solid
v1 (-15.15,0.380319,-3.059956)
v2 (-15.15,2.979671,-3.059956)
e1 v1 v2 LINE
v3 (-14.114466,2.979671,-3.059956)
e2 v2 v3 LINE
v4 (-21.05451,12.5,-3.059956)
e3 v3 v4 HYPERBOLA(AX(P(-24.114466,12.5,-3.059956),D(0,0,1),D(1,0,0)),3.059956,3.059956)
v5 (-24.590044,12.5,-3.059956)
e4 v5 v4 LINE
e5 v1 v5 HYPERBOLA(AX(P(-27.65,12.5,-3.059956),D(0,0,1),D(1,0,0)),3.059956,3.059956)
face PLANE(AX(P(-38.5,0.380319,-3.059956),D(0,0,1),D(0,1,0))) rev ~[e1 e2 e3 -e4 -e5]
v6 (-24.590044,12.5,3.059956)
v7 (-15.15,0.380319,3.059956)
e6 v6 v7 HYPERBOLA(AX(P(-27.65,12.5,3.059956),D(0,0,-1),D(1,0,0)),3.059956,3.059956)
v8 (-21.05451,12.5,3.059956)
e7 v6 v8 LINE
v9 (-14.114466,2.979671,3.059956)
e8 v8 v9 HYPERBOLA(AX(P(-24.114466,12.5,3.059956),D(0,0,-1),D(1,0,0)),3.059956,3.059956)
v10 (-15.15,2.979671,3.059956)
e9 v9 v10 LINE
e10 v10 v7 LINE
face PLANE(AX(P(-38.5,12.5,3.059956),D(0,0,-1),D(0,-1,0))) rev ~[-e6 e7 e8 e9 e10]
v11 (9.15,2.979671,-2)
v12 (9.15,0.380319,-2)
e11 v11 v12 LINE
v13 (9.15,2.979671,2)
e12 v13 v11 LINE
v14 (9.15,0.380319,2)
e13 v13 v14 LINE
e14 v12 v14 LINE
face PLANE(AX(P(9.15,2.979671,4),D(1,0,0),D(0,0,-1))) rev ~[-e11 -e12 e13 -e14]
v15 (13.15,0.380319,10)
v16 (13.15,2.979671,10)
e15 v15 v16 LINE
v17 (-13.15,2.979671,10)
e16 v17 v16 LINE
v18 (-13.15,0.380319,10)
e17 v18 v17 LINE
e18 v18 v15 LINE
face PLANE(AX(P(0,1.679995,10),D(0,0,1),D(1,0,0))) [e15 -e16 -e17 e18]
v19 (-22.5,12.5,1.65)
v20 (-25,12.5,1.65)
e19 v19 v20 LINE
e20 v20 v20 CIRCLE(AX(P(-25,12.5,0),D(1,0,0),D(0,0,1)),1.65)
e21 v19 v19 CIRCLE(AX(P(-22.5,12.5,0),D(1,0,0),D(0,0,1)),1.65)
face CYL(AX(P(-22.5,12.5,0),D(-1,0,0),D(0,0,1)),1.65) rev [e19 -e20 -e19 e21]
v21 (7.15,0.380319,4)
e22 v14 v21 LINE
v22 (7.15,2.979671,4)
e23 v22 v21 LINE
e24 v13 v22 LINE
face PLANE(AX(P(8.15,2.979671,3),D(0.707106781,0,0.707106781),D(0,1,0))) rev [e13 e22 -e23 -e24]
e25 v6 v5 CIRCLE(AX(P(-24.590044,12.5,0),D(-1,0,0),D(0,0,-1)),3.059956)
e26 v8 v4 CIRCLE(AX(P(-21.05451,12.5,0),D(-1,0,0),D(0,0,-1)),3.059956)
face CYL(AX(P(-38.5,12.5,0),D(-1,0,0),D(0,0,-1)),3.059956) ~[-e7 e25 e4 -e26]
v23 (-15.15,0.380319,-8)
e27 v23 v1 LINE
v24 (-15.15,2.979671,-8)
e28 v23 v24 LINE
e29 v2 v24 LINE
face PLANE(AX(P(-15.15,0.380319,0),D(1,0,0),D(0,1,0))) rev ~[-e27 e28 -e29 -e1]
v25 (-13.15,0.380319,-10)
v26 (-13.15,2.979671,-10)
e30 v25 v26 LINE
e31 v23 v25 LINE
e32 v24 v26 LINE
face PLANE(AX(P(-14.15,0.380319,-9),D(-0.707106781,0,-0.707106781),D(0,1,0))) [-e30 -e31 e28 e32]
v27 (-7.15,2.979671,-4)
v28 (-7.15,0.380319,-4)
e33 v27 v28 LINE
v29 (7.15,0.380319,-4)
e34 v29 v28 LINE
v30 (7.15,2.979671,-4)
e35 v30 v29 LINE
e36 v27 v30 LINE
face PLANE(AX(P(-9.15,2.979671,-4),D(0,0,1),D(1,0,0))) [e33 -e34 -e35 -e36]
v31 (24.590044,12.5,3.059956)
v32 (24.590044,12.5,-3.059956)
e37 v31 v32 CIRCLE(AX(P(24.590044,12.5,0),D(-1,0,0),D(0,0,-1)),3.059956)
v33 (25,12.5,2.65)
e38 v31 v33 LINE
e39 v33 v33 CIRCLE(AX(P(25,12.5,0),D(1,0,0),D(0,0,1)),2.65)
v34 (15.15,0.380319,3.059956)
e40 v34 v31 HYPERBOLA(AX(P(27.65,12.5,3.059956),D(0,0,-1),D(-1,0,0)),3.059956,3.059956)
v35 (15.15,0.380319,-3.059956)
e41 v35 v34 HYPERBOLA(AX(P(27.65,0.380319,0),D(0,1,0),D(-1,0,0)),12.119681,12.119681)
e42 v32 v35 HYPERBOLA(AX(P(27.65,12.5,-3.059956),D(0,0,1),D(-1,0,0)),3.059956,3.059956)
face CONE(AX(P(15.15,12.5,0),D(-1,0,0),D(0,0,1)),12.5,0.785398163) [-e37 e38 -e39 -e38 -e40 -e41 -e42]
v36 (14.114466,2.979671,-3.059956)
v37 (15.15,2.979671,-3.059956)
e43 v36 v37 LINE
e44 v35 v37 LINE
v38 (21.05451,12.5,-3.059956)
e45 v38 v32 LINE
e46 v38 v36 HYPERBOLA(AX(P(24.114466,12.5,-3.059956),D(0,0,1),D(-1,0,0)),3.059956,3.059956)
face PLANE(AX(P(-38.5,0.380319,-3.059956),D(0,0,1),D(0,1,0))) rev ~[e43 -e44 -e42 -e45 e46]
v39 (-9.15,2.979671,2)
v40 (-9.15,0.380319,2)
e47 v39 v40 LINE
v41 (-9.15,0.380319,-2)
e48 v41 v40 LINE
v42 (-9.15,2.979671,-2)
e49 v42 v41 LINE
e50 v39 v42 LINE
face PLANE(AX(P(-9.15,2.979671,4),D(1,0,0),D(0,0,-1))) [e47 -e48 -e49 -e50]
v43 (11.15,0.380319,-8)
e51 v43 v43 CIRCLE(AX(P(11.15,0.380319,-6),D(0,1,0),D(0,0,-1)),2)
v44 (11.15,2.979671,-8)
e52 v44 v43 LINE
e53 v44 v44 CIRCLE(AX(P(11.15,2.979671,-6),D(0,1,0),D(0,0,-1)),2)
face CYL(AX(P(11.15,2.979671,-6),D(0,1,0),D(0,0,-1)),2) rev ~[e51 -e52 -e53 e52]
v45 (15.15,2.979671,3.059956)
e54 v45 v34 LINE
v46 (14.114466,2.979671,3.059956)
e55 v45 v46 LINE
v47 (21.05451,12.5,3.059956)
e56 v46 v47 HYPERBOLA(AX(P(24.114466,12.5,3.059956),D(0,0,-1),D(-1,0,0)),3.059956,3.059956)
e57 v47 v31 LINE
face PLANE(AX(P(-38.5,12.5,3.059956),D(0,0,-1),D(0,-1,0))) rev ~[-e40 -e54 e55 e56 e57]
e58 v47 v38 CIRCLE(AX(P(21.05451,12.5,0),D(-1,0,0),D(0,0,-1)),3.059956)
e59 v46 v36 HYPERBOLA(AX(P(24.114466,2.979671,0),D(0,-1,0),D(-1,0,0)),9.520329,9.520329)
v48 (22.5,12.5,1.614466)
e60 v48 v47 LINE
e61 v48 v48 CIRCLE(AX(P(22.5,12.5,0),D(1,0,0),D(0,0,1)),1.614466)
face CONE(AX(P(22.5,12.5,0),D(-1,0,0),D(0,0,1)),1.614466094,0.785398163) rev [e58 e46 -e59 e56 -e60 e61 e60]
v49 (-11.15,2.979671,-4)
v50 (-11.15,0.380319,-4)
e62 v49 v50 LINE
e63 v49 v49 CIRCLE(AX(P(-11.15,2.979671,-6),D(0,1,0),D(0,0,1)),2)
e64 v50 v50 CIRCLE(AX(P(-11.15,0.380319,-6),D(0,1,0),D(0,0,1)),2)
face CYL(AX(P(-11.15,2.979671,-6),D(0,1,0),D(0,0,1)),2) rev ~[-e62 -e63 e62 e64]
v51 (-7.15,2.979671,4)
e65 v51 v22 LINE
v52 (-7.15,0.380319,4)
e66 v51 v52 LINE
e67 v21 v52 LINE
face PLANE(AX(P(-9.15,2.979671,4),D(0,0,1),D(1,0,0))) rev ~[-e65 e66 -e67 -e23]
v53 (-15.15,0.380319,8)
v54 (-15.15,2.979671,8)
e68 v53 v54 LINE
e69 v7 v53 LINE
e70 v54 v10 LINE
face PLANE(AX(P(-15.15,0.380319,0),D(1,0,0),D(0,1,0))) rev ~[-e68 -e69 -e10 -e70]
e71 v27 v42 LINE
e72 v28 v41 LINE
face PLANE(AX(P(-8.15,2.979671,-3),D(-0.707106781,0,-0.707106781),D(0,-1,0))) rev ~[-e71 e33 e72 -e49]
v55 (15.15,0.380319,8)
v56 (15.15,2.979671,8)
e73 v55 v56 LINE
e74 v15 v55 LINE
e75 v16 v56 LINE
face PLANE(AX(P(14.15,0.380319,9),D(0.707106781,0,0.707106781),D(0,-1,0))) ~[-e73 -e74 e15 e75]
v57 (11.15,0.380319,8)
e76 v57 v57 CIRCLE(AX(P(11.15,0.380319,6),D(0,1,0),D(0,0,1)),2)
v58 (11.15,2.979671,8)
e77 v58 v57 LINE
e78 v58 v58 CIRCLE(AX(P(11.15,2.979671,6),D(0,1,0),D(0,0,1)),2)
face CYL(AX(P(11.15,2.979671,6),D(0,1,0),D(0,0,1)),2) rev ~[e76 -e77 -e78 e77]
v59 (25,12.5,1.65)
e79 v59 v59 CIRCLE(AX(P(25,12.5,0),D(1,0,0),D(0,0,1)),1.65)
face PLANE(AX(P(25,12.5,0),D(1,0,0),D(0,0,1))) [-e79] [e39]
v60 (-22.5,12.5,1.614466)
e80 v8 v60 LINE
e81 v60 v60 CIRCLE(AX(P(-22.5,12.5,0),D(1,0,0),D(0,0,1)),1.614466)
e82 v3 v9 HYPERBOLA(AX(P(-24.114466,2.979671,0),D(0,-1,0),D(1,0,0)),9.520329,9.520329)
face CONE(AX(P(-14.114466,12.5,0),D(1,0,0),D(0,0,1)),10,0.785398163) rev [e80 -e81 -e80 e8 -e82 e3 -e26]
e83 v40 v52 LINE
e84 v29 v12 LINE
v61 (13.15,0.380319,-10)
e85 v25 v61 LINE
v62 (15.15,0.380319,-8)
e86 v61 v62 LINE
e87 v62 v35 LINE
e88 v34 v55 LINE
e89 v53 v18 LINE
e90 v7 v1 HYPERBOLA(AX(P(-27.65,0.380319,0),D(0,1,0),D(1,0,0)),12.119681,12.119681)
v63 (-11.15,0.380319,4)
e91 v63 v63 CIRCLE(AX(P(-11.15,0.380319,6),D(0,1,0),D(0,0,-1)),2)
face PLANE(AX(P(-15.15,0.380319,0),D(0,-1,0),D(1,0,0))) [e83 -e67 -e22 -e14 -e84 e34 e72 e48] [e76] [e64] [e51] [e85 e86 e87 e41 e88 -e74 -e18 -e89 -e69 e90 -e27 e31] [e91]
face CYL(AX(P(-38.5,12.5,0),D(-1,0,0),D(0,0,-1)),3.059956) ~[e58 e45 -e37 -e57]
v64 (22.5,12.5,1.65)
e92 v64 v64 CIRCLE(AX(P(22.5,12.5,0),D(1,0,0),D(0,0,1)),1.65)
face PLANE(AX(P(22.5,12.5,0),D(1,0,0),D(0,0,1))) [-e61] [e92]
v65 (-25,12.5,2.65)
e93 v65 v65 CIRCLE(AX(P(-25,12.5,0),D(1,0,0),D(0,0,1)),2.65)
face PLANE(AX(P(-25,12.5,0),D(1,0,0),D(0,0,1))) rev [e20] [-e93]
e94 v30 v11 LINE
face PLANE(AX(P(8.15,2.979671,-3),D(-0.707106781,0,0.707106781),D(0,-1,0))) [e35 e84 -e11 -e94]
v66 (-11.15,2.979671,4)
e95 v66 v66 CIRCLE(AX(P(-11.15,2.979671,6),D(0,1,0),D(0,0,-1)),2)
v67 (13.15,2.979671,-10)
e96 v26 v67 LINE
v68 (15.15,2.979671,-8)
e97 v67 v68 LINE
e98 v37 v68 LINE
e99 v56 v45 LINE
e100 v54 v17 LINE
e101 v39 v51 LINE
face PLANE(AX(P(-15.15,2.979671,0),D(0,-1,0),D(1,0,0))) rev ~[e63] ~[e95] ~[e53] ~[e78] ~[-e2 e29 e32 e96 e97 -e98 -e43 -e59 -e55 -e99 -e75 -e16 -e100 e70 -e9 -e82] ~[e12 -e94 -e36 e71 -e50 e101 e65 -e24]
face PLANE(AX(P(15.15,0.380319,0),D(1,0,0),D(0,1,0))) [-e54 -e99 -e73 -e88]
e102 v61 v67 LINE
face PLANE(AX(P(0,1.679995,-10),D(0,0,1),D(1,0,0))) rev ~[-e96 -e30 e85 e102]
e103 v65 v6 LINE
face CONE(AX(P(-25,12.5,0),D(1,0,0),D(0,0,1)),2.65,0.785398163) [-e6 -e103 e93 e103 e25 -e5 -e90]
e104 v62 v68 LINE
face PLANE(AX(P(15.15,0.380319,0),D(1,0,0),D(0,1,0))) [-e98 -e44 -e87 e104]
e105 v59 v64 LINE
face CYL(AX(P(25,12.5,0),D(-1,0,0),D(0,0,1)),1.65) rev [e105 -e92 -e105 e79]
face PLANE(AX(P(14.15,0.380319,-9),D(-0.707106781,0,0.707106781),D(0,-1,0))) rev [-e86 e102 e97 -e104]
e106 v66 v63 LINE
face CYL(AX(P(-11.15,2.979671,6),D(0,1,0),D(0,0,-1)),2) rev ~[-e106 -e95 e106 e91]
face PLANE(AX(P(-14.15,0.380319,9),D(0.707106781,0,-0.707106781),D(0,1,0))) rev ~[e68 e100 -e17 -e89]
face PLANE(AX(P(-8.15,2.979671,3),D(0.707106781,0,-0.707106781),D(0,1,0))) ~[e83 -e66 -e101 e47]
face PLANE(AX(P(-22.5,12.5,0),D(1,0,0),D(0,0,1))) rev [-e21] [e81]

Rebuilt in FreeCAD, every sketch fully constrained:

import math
import FreeCAD as App
import Part
import Sketcher

V = App.Vector


def edges_at(feature, points):
    """Names of the edges that pass closest to the given points."""
    edges = feature.Shape.Edges
    near = lambda p: min(range(len(edges)), key=lambda i: edges[i].distToShape(Part.Vertex(*p))[0])
    return sorted({f"Edge{near(p) + 1}" for p in points})

doc = App.newDocument("Part")
params = doc.addObject("Spreadsheet::Sheet", "Params")
for row, (alias, value) in enumerate([
    ("sketch1_width", "50 mm"),
    ("sketch1_height", "1 mm"),
    ("sketch1_width2", "2.5 mm"),
    ("sketch1_width3", "30.3 mm"),
    ("revolution_angle", "360 deg"),
    ("sketch2_radius", "12.5 mm"),
    ("sketch3_width", "30.3 mm"),
    ("pad1_length", "20 mm"),
    ("sketch4_radius", "12.5 mm"),
    ("sketch5_height", "8 mm"),
    ("sketch5_width", "18.3 mm"),
    ("sketch6_diameter", "4 mm"),
    ("chamfer_size", "2 mm"),
], start=1):
    params.set(f"A{row}", alias)
    params.set(f"B{row}", "=" + value)
    params.setAlias(f"B{row}", alias)

body = doc.addObject("PartDesign::Body", "Body")

sketch1 = body.newObject("Sketcher::SketchObject", "Sketch")
sketch1.AttachmentSupport = (doc.getObject("XY_Plane"), [""])
sketch1.MapMode = "FlatFace"
sketch1.addGeometry([
    Part.LineSegment(V(15.15, 0, 0), V(25, 9.85, 0)),
    Part.LineSegment(V(25, 9.85, 0), V(25, 10.85, 0)),
    Part.LineSegment(V(25, 10.85, 0), V(22.5, 10.85, 0)),
    Part.LineSegment(V(22.5, 10.85, 0), V(22.5, 10.886, 0)),
    Part.LineSegment(V(22.5, 10.886, 0), V(14.114, 2.5, 0)),
    Part.LineSegment(V(14.114, 2.5, 0), V(-14.114, 2.5, 0)),
    Part.LineSegment(V(-14.114, 2.5, 0), V(-22.5, 10.886, 0)),
    Part.LineSegment(V(-22.5, 10.886, 0), V(-22.5, 10.85, 0)),
    Part.LineSegment(V(-22.5, 10.85, 0), V(-25, 10.85, 0)),
    Part.LineSegment(V(-25, 10.85, 0), V(-25, 9.85, 0)),
    Part.LineSegment(V(-25, 9.85, 0), V(-15.15, 0, 0)),
    Part.LineSegment(V(-15.15, 0, 0), V(15.15, 0, 0)),
], False)
sketch1.addGeometry(Part.LineSegment(V(-25, 12.5, 0), V(25, 12.5, 0)), True)
sketch1.addConstraint([
    Sketcher.Constraint("Coincident", 0, 2, 1, 1),
    Sketcher.Constraint("Coincident", 1, 2, 2, 1),
    Sketcher.Constraint("Coincident", 2, 2, 3, 1),
    Sketcher.Constraint("Coincident", 3, 2, 4, 1),
    Sketcher.Constraint("Coincident", 4, 2, 5, 1),
    Sketcher.Constraint("Coincident", 5, 2, 6, 1),
    Sketcher.Constraint("Coincident", 6, 2, 7, 1),
    Sketcher.Constraint("Coincident", 7, 2, 8, 1),
    Sketcher.Constraint("Coincident", 8, 2, 9, 1),
    Sketcher.Constraint("Coincident", 9, 2, 10, 1),
    Sketcher.Constraint("Coincident", 10, 2, 11, 1),
    Sketcher.Constraint("Coincident", 11, 2, 0, 1),
    Sketcher.Constraint("Vertical", 1),
    Sketcher.Constraint("Horizontal", 2),
    Sketcher.Constraint("Vertical", 3),
    Sketcher.Constraint("Horizontal", 5),
    Sketcher.Constraint("Vertical", 7),
    Sketcher.Constraint("Horizontal", 8),
    Sketcher.Constraint("Vertical", 9),
    Sketcher.Constraint("Horizontal", 11),
    Sketcher.Constraint("Horizontal", 12),
    Sketcher.Constraint("Symmetric", 10, 2, 11, 2, -1, 1),
    Sketcher.Constraint("Symmetric", 3, 2, 6, 2, -2),
    Sketcher.Constraint("Symmetric", 1, 2, 8, 2, -2),
    Sketcher.Constraint("Parallel", 0, 4),
    Sketcher.Constraint("Perpendicular", 4, 6),
    Sketcher.Constraint("Parallel", 6, 10),
    Sketcher.Constraint("Horizontal", 0, 2, 9, 2),
    Sketcher.Constraint("Vertical", 9, 2, 12, 1),
    Sketcher.Constraint("Vertical", 1, 2, 12, 2),
    Sketcher.Constraint("DistanceX", 12, 1, 12, 2, 50.0),
    Sketcher.Constraint("DistanceY", 1, 1, 1, 2, 1.0),
    Sketcher.Constraint("DistanceX", 2, 2, 2, 1, 2.5),
    Sketcher.Constraint("DistanceX", 11, 1, 11, 2, 30.3),
    Sketcher.Constraint("DistanceY", 5, 2, 12, 1, 10.0),
    Sketcher.Constraint("DistanceY", -1, 1, 4, 2, 2.5),
    Sketcher.Constraint("DistanceX", 5, 2, 5, 1, 28.228932),
])
sketch1.setExpression("Constraints[30]", "Params.sketch1_width")
sketch1.setExpression("Constraints[31]", "Params.sketch1_height")
sketch1.setExpression("Constraints[32]", "Params.sketch1_width2")
sketch1.setExpression("Constraints[33]", "Params.sketch1_width3")
revolution = body.newObject("PartDesign::Revolution", "Revolution")
revolution.Profile = sketch1
revolution.ReferenceAxis = (sketch1, ["Axis0"])
revolution.setExpression("Angle", "Params.revolution_angle")

sketch2 = body.newObject("Sketcher::SketchObject", "Sketch001")
sketch2.AttachmentSupport = (doc.getObject("YZ_Plane"), [""])
sketch2.MapMode = "FlatFace"
sketch2.addGeometry([
    Part.LineSegment(V(32.1, 19.6, 0), V(-7.1, 19.6, 0)),
    Part.LineSegment(V(-7.1, 19.6, 0), V(-7.1, -19.6, 0)),
    Part.LineSegment(V(-7.1, -19.6, 0), V(32.1, -19.6, 0)),
    Part.LineSegment(V(32.1, -19.6, 0), V(32.1, 19.6, 0)),
    Part.LineSegment(V(0.4, 3.1, 0), V(12.5, 3.1, 0)),
    Part.ArcOfCircle(Part.Circle(V(12.5, 0, 0), V(0, 0, 1), 3.1), math.radians(-90), math.radians(90)),
    Part.LineSegment(V(12.5, -3.1, 0), V(0.4, -3.1, 0)),
    Part.ArcOfCircle(Part.Circle(V(12.5, 0, 0), V(0, 0, 1), 12.5), math.radians(166), math.radians(194)),
], False)
sketch2.addConstraint([
    Sketcher.Constraint("Coincident", 0, 2, 1, 1),
    Sketcher.Constraint("Coincident", 1, 2, 2, 1),
    Sketcher.Constraint("Coincident", 2, 2, 3, 1),
    Sketcher.Constraint("Coincident", 3, 2, 0, 1),
    Sketcher.Constraint("Tangent", 4, 2, 5, 2),
    Sketcher.Constraint("Tangent", 5, 1, 6, 1),
    Sketcher.Constraint("Coincident", 6, 2, 7, 2),
    Sketcher.Constraint("Coincident", 7, 1, 4, 1),
    Sketcher.Constraint("Horizontal", 0),
    Sketcher.Constraint("Vertical", 1),
    Sketcher.Constraint("Horizontal", 2),
    Sketcher.Constraint("Vertical", 3),
    Sketcher.Constraint("Horizontal", 4),
    Sketcher.Constraint("Horizontal", 6),
    Sketcher.Constraint("Coincident", 7, 3, 5, 3),
    Sketcher.Constraint("PointOnObject", 5, 3, -1),
    Sketcher.Constraint("Equal", 2, 1),
    Sketcher.Constraint("Radius", 7, 12.5),
    Sketcher.Constraint("DistanceX", -1, 1, 5, 3, 12.5),
    Sketcher.Constraint("DistanceX", 0, 2, 0, 1, 39.248),
    Sketcher.Constraint("DistanceX", 0, 2, -1, 1, 7.124),
    Sketcher.Constraint("DistanceY", -1, 1, 0, 2, 19.624),
    Sketcher.Constraint("Radius", 5, 3.059956),
])
sketch2.setExpression("Constraints[17]", "Params.sketch2_radius")
pocket1 = body.newObject("PartDesign::Pocket", "Pocket")
pocket1.Profile = sketch2
pocket1.Type = "ThroughAll"
pocket1.Midplane = True

sketch3 = body.newObject("Sketcher::SketchObject", "Sketch002")
sketch3.AttachmentSupport = (doc.getObject("XY_Plane"), [""])
sketch3.MapMode = "FlatFace"
sketch3.addGeometry([
    Part.LineSegment(V(-15.2, 3, 0), V(-15.2, 0.4, 0)),
    Part.LineSegment(V(-15.2, 0.4, 0), V(15.2, 0.4, 0)),
    Part.LineSegment(V(15.2, 0.4, 0), V(15.2, 3, 0)),
    Part.LineSegment(V(15.2, 3, 0), V(-15.2, 3, 0)),
], False)
sketch3.addConstraint([
    Sketcher.Constraint("Coincident", 0, 2, 1, 1),
    Sketcher.Constraint("Coincident", 1, 2, 2, 1),
    Sketcher.Constraint("Coincident", 2, 2, 3, 1),
    Sketcher.Constraint("Coincident", 3, 2, 0, 1),
    Sketcher.Constraint("Vertical", 0),
    Sketcher.Constraint("Horizontal", 1),
    Sketcher.Constraint("Vertical", 2),
    Sketcher.Constraint("Horizontal", 3),
    Sketcher.Constraint("DistanceX", 1, 1, 1, 2, 30.3),
    Sketcher.Constraint("DistanceX", 0, 2, -1, 1, 15.15),
    Sketcher.Constraint("DistanceY", 0, 2, 0, 1, 2.599352),
    Sketcher.Constraint("DistanceY", -1, 1, 0, 2, 0.380319),
])
sketch3.setExpression("Constraints[8]", "Params.sketch3_width")
pad1 = body.newObject("PartDesign::Pad", "Pad")
pad1.Profile = sketch3
pad1.setExpression("Length", "Params.pad1_length")
pad1.Midplane = True

sketch4 = body.newObject("Sketcher::SketchObject", "Sketch003")
sketch4.AttachmentSupport = (doc.getObject("YZ_Plane"), [""])
sketch4.MapMode = "FlatFace"
sketch4.AttachmentOffset = App.Placement(V(0, 0, -15.15), App.Rotation())
sketch4.addGeometry([
    Part.LineSegment(V(0, 3, 0), V(0, -3, 0)),
    Part.ArcOfCircle(Part.Circle(V(13, 0, 0), V(0, 0, 1), 13), math.radians(166), math.radians(194)),
], False)
sketch4.addConstraint([
    Sketcher.Constraint("Coincident", 0, 1, 1, 1),
    Sketcher.Constraint("Coincident", 1, 2, 0, 2),
    Sketcher.Constraint("Vertical", 0),
    Sketcher.Constraint("PointOnObject", 1, 3, -1),
    Sketcher.Constraint("Radius", 1, 12.5),
    Sketcher.Constraint("DistanceX", -1, 1, 1, 3, 12.5),
    Sketcher.Constraint("DistanceY", 0, 2, 0, 1, 6.119913),
])
sketch4.setExpression("Constraints[4]", "Params.sketch4_radius")
pocket2 = body.newObject("PartDesign::Pocket", "Pocket001")
pocket2.Profile = sketch4
pocket2.Type = "ThroughAll"
pocket2.Midplane = True

sketch5 = body.newObject("Sketcher::SketchObject", "Sketch004")
sketch5.AttachmentSupport = (doc.getObject("XZ_Plane"), [""])
sketch5.MapMode = "FlatFace"
sketch5.AttachmentOffset = App.Placement(V(0, 0, -2.979671), App.Rotation())
sketch5.addGeometry([
    Part.LineSegment(V(-9, -4, 0), V(-9, 4, 0)),
    Part.LineSegment(V(-9, 4, 0), V(9, 4, 0)),
    Part.LineSegment(V(9, 4, 0), V(9, -4, 0)),
    Part.LineSegment(V(9, -4, 0), V(-9, -4, 0)),
], False)
sketch5.addConstraint([
    Sketcher.Constraint("Coincident", 0, 2, 1, 1),
    Sketcher.Constraint("Coincident", 1, 2, 2, 1),
    Sketcher.Constraint("Coincident", 2, 2, 3, 1),
    Sketcher.Constraint("Coincident", 3, 2, 0, 1),
    Sketcher.Constraint("Vertical", 0),
    Sketcher.Constraint("Horizontal", 1),
    Sketcher.Constraint("Vertical", 2),
    Sketcher.Constraint("Horizontal", 3),
    Sketcher.Constraint("Symmetric", 0, 2, 2, 2, -1, 1),
    Sketcher.Constraint("DistanceY", 0, 1, 0, 2, 8.0),
    Sketcher.Constraint("DistanceX", 1, 1, 1, 2, 18.3),
])
sketch5.setExpression("Constraints[9]", "Params.sketch5_height")
sketch5.setExpression("Constraints[10]", "Params.sketch5_width")
pocket3 = body.newObject("PartDesign::Pocket", "Pocket002")
pocket3.Profile = sketch5
pocket3.Type = "ThroughAll"
pocket3.Reversed = True

sketch6 = body.newObject("Sketcher::SketchObject", "Sketch005")
sketch6.AttachmentSupport = (doc.getObject("XZ_Plane"), [""])
sketch6.MapMode = "FlatFace"
sketch6.AttachmentOffset = App.Placement(V(0, 0, -2.979671), App.Rotation())
sketch6.addGeometry([
    Part.Circle(V(11.2, 6, 0), V(0, 0, 1), 2),
    Part.Circle(V(-11.2, 6, 0), V(0, 0, 1), 2),
    Part.Circle(V(-11.2, -6, 0), V(0, 0, 1), 2),
    Part.Circle(V(11.2, -6, 0), V(0, 0, 1), 2),
], False)
sketch6.addConstraint([
    Sketcher.Constraint("Equal", 0, 1),
    Sketcher.Constraint("Equal", 1, 2),
    Sketcher.Constraint("Equal", 2, 3),
    Sketcher.Constraint("Symmetric", 0, 3, 2, 3, -1, 1),
    Sketcher.Constraint("Symmetric", 1, 3, 3, 3, -1, 1),
    Sketcher.Constraint("Symmetric", 0, 3, 1, 3, -2),
    Sketcher.Constraint("Diameter", 0, 4.0),
    Sketcher.Constraint("DistanceY", -1, 1, 0, 3, 6.0),
    Sketcher.Constraint("DistanceX", 1, 3, 0, 3, 22.3),
])
sketch6.setExpression("Constraints[6]", "Params.sketch6_diameter")
pocket4 = body.newObject("PartDesign::Pocket", "Pocket003")
pocket4.Profile = sketch6
pocket4.Type = "ThroughAll"
pocket4.Reversed = True
doc.recompute()

chamfer = body.newObject("PartDesign::Chamfer", "Chamfer")
chamfer.Base = (pocket4, edges_at(pocket4, [
    (-9.15, 1.68, -4),
    (9.15, 1.68, -4),
    (9.15, 1.68, 4),
    (-9.15, 1.68, 4),
    (15.15, 1.68, -10),
    (-15.15, 1.68, -10),
    (15.15, 1.68, 10),
    (-15.15, 1.68, 10),
]))
chamfer.setExpression("Size", "Params.chamfer_size")

doc.recompute()
